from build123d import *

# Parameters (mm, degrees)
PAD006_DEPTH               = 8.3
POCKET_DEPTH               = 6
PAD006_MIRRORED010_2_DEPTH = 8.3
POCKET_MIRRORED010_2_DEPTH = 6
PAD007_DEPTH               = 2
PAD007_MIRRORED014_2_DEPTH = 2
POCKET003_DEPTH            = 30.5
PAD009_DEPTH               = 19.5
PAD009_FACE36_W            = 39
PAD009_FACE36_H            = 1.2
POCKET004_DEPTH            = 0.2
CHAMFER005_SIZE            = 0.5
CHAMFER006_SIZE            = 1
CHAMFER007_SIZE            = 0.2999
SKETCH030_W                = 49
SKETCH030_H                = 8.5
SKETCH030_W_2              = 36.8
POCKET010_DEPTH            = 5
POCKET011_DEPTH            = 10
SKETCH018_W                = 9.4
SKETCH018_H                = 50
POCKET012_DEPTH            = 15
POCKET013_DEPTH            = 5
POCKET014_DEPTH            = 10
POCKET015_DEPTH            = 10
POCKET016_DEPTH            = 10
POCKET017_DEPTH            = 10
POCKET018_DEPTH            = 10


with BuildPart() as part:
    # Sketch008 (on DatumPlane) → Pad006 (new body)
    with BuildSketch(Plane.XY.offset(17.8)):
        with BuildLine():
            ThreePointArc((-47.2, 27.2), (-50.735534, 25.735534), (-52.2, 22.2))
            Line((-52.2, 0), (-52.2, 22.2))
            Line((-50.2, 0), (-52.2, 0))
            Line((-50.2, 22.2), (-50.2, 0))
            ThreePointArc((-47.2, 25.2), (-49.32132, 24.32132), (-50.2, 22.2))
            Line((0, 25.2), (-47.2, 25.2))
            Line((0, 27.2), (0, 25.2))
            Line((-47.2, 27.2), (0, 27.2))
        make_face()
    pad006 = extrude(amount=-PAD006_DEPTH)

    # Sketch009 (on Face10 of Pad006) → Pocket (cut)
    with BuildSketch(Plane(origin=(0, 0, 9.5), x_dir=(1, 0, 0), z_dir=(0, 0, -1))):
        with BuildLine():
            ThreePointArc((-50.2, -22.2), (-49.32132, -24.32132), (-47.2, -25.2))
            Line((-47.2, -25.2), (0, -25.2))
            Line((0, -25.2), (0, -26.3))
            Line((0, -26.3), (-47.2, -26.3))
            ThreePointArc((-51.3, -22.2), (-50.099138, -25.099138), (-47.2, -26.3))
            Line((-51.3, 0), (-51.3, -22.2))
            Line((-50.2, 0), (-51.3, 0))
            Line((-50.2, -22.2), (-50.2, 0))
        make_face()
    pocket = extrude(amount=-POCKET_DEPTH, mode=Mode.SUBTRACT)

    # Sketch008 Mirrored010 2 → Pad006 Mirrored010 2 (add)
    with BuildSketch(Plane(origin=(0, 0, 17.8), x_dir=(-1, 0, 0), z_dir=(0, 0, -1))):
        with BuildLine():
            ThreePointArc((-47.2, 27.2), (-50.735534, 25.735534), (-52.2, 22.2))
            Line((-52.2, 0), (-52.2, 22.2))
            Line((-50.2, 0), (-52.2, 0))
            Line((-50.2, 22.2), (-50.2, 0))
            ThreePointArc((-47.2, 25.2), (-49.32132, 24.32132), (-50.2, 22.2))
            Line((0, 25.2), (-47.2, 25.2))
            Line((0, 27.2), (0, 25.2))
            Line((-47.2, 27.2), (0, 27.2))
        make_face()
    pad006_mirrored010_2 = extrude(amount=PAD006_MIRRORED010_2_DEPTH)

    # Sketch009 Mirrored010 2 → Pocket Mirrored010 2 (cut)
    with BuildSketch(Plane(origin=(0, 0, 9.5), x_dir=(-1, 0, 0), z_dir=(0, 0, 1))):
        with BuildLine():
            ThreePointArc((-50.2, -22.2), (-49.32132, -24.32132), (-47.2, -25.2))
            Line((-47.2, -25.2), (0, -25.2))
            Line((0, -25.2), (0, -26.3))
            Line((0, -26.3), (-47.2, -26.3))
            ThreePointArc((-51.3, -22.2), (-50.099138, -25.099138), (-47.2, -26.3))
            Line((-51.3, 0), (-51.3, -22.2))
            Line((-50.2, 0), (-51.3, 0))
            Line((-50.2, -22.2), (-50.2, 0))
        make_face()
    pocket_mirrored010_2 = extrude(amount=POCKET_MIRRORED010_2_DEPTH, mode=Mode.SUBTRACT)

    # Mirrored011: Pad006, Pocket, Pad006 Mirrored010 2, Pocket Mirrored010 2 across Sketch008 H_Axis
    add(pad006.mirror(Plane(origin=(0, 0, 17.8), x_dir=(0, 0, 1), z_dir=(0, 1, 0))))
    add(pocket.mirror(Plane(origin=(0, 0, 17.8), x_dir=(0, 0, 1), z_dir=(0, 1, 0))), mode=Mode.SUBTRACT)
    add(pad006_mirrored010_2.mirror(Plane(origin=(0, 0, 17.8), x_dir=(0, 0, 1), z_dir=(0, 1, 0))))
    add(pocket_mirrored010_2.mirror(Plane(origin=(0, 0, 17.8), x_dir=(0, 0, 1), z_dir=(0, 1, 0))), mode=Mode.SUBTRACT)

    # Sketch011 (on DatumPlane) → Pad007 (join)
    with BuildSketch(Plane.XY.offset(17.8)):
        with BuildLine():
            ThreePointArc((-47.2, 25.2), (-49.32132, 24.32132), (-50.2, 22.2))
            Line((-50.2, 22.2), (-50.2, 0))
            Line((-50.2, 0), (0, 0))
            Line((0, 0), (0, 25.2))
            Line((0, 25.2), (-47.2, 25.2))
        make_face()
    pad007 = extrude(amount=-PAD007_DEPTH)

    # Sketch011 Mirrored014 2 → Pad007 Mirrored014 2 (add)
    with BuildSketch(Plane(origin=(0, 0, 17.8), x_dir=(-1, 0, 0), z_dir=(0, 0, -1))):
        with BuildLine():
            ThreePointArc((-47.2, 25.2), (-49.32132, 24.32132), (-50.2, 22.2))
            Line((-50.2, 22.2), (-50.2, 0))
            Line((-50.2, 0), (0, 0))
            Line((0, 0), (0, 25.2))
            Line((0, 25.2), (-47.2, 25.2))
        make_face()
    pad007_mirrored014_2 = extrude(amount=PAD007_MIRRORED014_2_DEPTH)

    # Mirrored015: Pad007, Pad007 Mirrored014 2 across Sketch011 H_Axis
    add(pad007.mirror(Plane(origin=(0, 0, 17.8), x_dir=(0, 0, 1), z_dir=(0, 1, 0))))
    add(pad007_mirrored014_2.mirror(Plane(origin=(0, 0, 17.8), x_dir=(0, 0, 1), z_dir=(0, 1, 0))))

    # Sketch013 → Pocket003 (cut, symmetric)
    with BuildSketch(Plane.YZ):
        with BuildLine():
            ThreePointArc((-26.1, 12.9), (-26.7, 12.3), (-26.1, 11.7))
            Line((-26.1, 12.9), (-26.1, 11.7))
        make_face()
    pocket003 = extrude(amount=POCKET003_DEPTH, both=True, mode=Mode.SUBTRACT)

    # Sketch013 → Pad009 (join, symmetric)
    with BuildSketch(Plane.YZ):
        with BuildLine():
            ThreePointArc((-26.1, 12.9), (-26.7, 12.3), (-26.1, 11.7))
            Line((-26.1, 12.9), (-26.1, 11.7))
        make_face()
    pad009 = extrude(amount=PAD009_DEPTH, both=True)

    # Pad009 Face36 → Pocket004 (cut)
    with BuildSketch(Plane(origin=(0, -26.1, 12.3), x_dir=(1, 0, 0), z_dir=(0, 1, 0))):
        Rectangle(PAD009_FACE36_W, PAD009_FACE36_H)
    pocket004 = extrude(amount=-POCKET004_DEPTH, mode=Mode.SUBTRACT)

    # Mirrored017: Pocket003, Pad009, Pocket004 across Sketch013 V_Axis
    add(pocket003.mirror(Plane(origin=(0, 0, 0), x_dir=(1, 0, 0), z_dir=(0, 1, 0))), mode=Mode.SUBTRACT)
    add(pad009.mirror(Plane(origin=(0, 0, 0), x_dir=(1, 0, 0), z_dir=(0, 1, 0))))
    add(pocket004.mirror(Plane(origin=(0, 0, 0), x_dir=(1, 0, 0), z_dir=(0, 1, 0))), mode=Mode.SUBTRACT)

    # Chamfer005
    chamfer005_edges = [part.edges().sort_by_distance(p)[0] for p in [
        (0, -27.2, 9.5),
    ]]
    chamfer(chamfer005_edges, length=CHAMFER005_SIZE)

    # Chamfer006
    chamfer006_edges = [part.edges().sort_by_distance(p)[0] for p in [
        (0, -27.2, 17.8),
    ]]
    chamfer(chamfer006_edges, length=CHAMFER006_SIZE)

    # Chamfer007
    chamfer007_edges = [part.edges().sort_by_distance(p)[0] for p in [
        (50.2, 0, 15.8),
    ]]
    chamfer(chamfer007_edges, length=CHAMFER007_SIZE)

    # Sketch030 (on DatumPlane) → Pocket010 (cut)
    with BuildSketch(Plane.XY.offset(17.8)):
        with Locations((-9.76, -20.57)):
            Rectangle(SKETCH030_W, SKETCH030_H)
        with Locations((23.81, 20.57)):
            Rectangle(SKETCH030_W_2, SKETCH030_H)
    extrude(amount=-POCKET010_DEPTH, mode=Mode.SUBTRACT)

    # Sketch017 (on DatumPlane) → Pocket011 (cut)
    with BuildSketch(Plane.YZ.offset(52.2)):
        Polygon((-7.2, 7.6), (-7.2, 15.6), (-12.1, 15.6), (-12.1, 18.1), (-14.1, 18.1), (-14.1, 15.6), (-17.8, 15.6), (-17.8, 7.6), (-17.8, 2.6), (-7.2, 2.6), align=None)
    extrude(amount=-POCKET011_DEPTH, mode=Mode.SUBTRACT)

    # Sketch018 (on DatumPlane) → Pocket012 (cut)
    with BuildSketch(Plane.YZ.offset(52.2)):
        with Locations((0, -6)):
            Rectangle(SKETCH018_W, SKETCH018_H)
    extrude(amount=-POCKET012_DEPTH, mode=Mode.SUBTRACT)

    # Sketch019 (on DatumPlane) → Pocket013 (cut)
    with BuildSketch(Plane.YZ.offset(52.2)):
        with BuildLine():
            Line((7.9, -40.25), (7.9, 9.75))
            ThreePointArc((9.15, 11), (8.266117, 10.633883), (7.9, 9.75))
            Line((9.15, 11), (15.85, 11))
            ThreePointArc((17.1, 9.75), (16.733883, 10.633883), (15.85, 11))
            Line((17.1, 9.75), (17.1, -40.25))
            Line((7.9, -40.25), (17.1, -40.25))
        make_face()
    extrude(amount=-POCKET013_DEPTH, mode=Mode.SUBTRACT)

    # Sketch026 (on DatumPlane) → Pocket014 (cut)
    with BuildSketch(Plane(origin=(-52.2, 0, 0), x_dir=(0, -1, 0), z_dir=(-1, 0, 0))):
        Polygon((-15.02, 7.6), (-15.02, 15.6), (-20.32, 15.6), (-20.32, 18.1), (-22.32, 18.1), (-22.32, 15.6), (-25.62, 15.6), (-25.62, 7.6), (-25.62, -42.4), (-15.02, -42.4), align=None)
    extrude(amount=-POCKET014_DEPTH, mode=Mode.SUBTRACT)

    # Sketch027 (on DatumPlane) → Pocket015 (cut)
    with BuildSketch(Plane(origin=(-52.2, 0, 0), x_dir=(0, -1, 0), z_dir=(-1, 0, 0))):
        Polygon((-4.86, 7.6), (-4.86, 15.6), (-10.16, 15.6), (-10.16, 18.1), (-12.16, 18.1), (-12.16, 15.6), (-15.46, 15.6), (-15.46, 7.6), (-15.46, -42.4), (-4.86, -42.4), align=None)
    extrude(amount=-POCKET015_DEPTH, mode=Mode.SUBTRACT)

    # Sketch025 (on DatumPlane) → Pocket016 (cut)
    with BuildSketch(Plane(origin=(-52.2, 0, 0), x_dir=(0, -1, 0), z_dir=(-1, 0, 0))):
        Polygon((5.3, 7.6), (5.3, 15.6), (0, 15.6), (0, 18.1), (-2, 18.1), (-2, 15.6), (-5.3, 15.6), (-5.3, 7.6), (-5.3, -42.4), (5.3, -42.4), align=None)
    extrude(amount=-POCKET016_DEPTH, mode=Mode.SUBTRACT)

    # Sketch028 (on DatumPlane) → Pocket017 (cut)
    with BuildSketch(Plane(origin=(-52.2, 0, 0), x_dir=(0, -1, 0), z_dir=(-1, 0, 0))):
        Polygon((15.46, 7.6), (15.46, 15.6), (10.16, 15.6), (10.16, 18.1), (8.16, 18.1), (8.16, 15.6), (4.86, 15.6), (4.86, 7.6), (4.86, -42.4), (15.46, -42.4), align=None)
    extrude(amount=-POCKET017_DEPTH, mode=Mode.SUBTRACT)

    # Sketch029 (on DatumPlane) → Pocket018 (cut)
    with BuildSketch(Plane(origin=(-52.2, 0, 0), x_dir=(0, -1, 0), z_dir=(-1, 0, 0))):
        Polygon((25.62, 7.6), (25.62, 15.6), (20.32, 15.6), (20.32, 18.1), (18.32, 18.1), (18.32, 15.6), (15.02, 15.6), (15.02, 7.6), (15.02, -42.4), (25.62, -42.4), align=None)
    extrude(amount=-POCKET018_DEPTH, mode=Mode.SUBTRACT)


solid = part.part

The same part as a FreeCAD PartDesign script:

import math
import FreeCAD as App
import Part
import Sketcher
from FreeCAD import Vector


def edges_at(feature, points):
    """Names of the edges that pass closest to the given points."""
    edges = feature.Shape.Edges
    near = lambda p: min(range(len(edges)), key=lambda i: edges[i].distToShape(Part.Vertex(*p))[0])
    return sorted({f"Edge{near(p) + 1}" for p in points})

doc = App.newDocument("Part")
body = doc.addObject("PartDesign::Body", "Body")

# Sketch on XY plane
sketch1 = body.newObject("Sketcher::SketchObject", "Sketch")
sketch1.AttachmentSupport = (doc.getObject("XY_Plane"), [""])
sketch1.MapMode = "FlatFace"
sketch1.AttachmentOffset = App.Placement(Vector(0, 0, 17.8), App.Rotation())
sketch1.addGeometry(Part.ArcOfCircle(Part.Circle(Vector(-47.2, 22.2, 0), Vector(0, 0, 1), 5), math.radians(89.999996), math.radians(180.000004)), False)
sketch1.addGeometry(Part.LineSegment(Vector(-52.2, 22.2, 0), Vector(-52.2, 0, 0)), False)
sketch1.addGeometry(Part.LineSegment(Vector(-52.2, 0, 0), Vector(-50.2, 0, 0)), False)
sketch1.addGeometry(Part.LineSegment(Vector(-50.2, 0, 0), Vector(-50.2, 22.2, 0)), False)
sketch1.addGeometry(Part.ArcOfCircle(Part.Circle(Vector(-47.199999, 22.199999, 0), Vector(0, 0, 1), 3.000001), math.radians(90.000022), math.radians(179.999978)), False)
sketch1.addGeometry(Part.LineSegment(Vector(-47.2, 25.2, 0), Vector(0, 25.2, 0)), False)
sketch1.addGeometry(Part.LineSegment(Vector(0, 25.2, 0), Vector(0, 27.2, 0)), False)
sketch1.addGeometry(Part.LineSegment(Vector(0, 27.2, 0), Vector(-47.2, 27.2, 0)), False)
sketch1.addConstraint(Sketcher.Constraint("Tangent", 0, 2, 1, 1))
sketch1.addConstraint(Sketcher.Constraint("Coincident", 1, 2, 2, 1))
sketch1.addConstraint(Sketcher.Constraint("Coincident", 2, 2, 3, 1))
sketch1.addConstraint(Sketcher.Constraint("Tangent", 3, 2, 4, 2))
sketch1.addConstraint(Sketcher.Constraint("Tangent", 4, 1, 5, 1))
sketch1.addConstraint(Sketcher.Constraint("Coincident", 5, 2, 6, 1))
sketch1.addConstraint(Sketcher.Constraint("Coincident", 6, 2, 7, 1))
sketch1.addConstraint(Sketcher.Constraint("Tangent", 7, 2, 0, 1))
sketch1.addConstraint(Sketcher.Constraint("Vertical", 1))
sketch1.addConstraint(Sketcher.Constraint("Horizontal", 2))
sketch1.addConstraint(Sketcher.Constraint("Vertical", 3))
sketch1.addConstraint(Sketcher.Constraint("Horizontal", 5))
sketch1.addConstraint(Sketcher.Constraint("Vertical", 6))
sketch1.addConstraint(Sketcher.Constraint("Horizontal", 7))
sketch1.addConstraint(Sketcher.Constraint("Coincident", 4, 3, 0, 3))
sketch1.addConstraint(Sketcher.Constraint("PointOnObject", 1, 2, -1))
sketch1.addConstraint(Sketcher.Constraint("PointOnObject", 5, 2, -2))
sketch1.addConstraint(Sketcher.Constraint("Radius", 0, 5.0))
sketch1.addConstraint(Sketcher.Constraint("Radius", 4, 3.000001))
sketch1.addConstraint(Sketcher.Constraint("DistanceX", 5, 1, 5, 2, 47.2))
sketch1.addConstraint(Sketcher.Constraint("DistanceY", 1, 2, 1, 1, 22.2))
pad1 = body.newObject("PartDesign::Pad", "Pad")
pad1.Profile = sketch1
pad1.Length = 8.3
pad1.Reversed = True

# Sketch on XY plane
sketch2 = body.newObject("Sketcher::SketchObject", "Sketch001")
sketch2.AttachmentSupport = (doc.getObject("XY_Plane"), [""])
sketch2.MapMode = "FlatFace"
sketch2.AttachmentOffset = App.Placement(Vector(0, 0, 9.5), App.Rotation())
sketch2.addGeometry(Part.ArcOfCircle(Part.Circle(Vector(-47.199999, 22.199999, 0), Vector(0, 0, 1), 3.000001), math.radians(90.000022), math.radians(179.999978)), False)
sketch2.addGeometry(Part.LineSegment(Vector(-50.2, 22.2, 0), Vector(-50.2, 0, 0)), False)
sketch2.addGeometry(Part.LineSegment(Vector(-50.2, 0, 0), Vector(-51.3, 0, 0)), False)
sketch2.addGeometry(Part.LineSegment(Vector(-51.3, 0, 0), Vector(-51.3, 22.2, 0)), False)
sketch2.addGeometry(Part.ArcOfCircle(Part.Circle(Vector(-47.200001, 22.200001, 0), Vector(0, 0, 1), 4.099999), math.radians(89.999991), math.radians(180.000009)), False)
sketch2.addGeometry(Part.LineSegment(Vector(-47.2, 26.3, 0), Vector(0, 26.3, 0)), False)
sketch2.addGeometry(Part.LineSegment(Vector(0, 26.3, 0), Vector(0, 25.2, 0)), False)
sketch2.addGeometry(Part.LineSegment(Vector(0, 25.2, 0), Vector(-47.2, 25.2, 0)), False)
sketch2.addConstraint(Sketcher.Constraint("Tangent", 0, 2, 1, 1))
sketch2.addConstraint(Sketcher.Constraint("Coincident", 1, 2, 2, 1))
sketch2.addConstraint(Sketcher.Constraint("Coincident", 2, 2, 3, 1))
sketch2.addConstraint(Sketcher.Constraint("Tangent", 3, 2, 4, 2))
sketch2.addConstraint(Sketcher.Constraint("Tangent", 4, 1, 5, 1))
sketch2.addConstraint(Sketcher.Constraint("Coincident", 5, 2, 6, 1))
sketch2.addConstraint(Sketcher.Constraint("Coincident", 6, 2, 7, 1))
sketch2.addConstraint(Sketcher.Constraint("Tangent", 7, 2, 0, 1))
sketch2.addConstraint(Sketcher.Constraint("Vertical", 1))
sketch2.addConstraint(Sketcher.Constraint("Horizontal", 2))
sketch2.addConstraint(Sketcher.Constraint("Vertical", 3))
sketch2.addConstraint(Sketcher.Constraint("Horizontal", 5))
sketch2.addConstraint(Sketcher.Constraint("Vertical", 6))
sketch2.addConstraint(Sketcher.Constraint("Horizontal", 7))
sketch2.addConstraint(Sketcher.Constraint("Coincident", 4, 3, 0, 3))
sketch2.addConstraint(Sketcher.Constraint("PointOnObject", 1, 2, -1))
sketch2.addConstraint(Sketcher.Constraint("PointOnObject", 5, 2, -2))
sketch2.addConstraint(Sketcher.Constraint("Radius", 0, 3.000001))
sketch2.addConstraint(Sketcher.Constraint("Radius", 4, 4.099999))
sketch2.addConstraint(Sketcher.Constraint("DistanceX", 5, 1, 5, 2, 47.2))
sketch2.addConstraint(Sketcher.Constraint("DistanceY", 1, 2, 1, 1, 22.2))
pocket1 = body.newObject("PartDesign::Pocket", "Pocket")
pocket1.Profile = sketch2
pocket1.Length = 6
pocket1.Reversed = True

# Sketch on XY plane
sketch3 = body.newObject("Sketcher::SketchObject", "Sketch002")
sketch3.AttachmentSupport = (doc.getObject("XY_Plane"), [""])
sketch3.MapMode = "FlatFace"
sketch3.AttachmentOffset = App.Placement(Vector(0, 0, 17.8), App.Rotation())
sketch3.addGeometry(Part.ArcOfCircle(Part.Circle(Vector(47.2, 22.2, 0), Vector(0, 0, 1), 5), math.radians(-0.000004), math.radians(90.000004)), False)
sketch3.addGeometry(Part.LineSegment(Vector(52.2, 22.2, 0), Vector(52.2, 0, 0)), False)
sketch3.addGeometry(Part.LineSegment(Vector(52.2, 0, 0), Vector(50.2, 0, 0)), False)
sketch3.addGeometry(Part.LineSegment(Vector(50.2, 0, 0), Vector(50.2, 22.2, 0)), False)
sketch3.addGeometry(Part.ArcOfCircle(Part.Circle(Vector(47.199999, 22.199999, 0), Vector(0, 0, 1), 3.000001), math.radians(0.000022), math.radians(89.999978)), False)
sketch3.addGeometry(Part.LineSegment(Vector(47.2, 25.2, 0), Vector(0, 25.2, 0)), False)
sketch3.addGeometry(Part.LineSegment(Vector(0, 25.2, 0), Vector(0, 27.2, 0)), False)
sketch3.addGeometry(Part.LineSegment(Vector(0, 27.2, 0), Vector(47.2, 27.2, 0)), False)
sketch3.addConstraint(Sketcher.Constraint("Tangent", 0, 1, 1, 1))
sketch3.addConstraint(Sketcher.Constraint("Coincident", 1, 2, 2, 1))
sketch3.addConstraint(Sketcher.Constraint("Coincident", 2, 2, 3, 1))
sketch3.addConstraint(Sketcher.Constraint("Tangent", 3, 2, 4, 1))
sketch3.addConstraint(Sketcher.Constraint("Tangent", 4, 2, 5, 1))
sketch3.addConstraint(Sketcher.Constraint("Coincident", 5, 2, 6, 1))
sketch3.addConstraint(Sketcher.Constraint("Coincident", 6, 2, 7, 1))
sketch3.addConstraint(Sketcher.Constraint("Tangent", 7, 2, 0, 2))
sketch3.addConstraint(Sketcher.Constraint("Vertical", 1))
sketch3.addConstraint(Sketcher.Constraint("Horizontal", 2))
sketch3.addConstraint(Sketcher.Constraint("Vertical", 3))
sketch3.addConstraint(Sketcher.Constraint("Horizontal", 5))
sketch3.addConstraint(Sketcher.Constraint("Vertical", 6))
sketch3.addConstraint(Sketcher.Constraint("Horizontal", 7))
sketch3.addConstraint(Sketcher.Constraint("Coincident", 4, 3, 0, 3))
sketch3.addConstraint(Sketcher.Constraint("PointOnObject", 1, 2, -1))
sketch3.addConstraint(Sketcher.Constraint("PointOnObject", 5, 2, -2))
sketch3.addConstraint(Sketcher.Constraint("Radius", 0, 5.0))
sketch3.addConstraint(Sketcher.Constraint("Radius", 4, 3.000001))
sketch3.addConstraint(Sketcher.Constraint("DistanceX", 5, 2, 5, 1, 47.2))
sketch3.addConstraint(Sketcher.Constraint("DistanceY", 1, 2, 1, 1, 22.2))
pad2 = body.newObject("PartDesign::Pad", "Pad001")
pad2.Profile = sketch3
pad2.Length = 8.3
pad2.Reversed = True

# Sketch on XY plane
sketch4 = body.newObject("Sketcher::SketchObject", "Sketch003")
sketch4.AttachmentSupport = (doc.getObject("XY_Plane"), [""])
sketch4.MapMode = "FlatFace"
sketch4.AttachmentOffset = App.Placement(Vector(0, 0, 9.5), App.Rotation())
sketch4.addGeometry(Part.ArcOfCircle(Part.Circle(Vector(47.199999, 22.199999, 0), Vector(0, 0, 1), 3.000001), math.radians(0.000022), math.radians(89.999978)), False)
sketch4.addGeometry(Part.LineSegment(Vector(50.2, 22.2, 0), Vector(50.2, 0, 0)), False)
sketch4.addGeometry(Part.LineSegment(Vector(50.2, 0, 0), Vector(51.3, 0, 0)), False)
sketch4.addGeometry(Part.LineSegment(Vector(51.3, 0, 0), Vector(51.3, 22.2, 0)), False)
sketch4.addGeometry(Part.ArcOfCircle(Part.Circle(Vector(47.200001, 22.200001, 0), Vector(0, 0, 1), 4.099999), math.radians(-0.000009), math.radians(90.000009)), False)
sketch4.addGeometry(Part.LineSegment(Vector(47.2, 26.3, 0), Vector(0, 26.3, 0)), False)
sketch4.addGeometry(Part.LineSegment(Vector(0, 26.3, 0), Vector(0, 25.2, 0)), False)
sketch4.addGeometry(Part.LineSegment(Vector(0, 25.2, 0), Vector(47.2, 25.2, 0)), False)
sketch4.addConstraint(Sketcher.Constraint("Tangent", 0, 1, 1, 1))
sketch4.addConstraint(Sketcher.Constraint("Coincident", 1, 2, 2, 1))
sketch4.addConstraint(Sketcher.Constraint("Coincident", 2, 2, 3, 1))
sketch4.addConstraint(Sketcher.Constraint("Tangent", 3, 2, 4, 1))
sketch4.addConstraint(Sketcher.Constraint("Tangent", 4, 2, 5, 1))
sketch4.addConstraint(Sketcher.Constraint("Coincident", 5, 2, 6, 1))
sketch4.addConstraint(Sketcher.Constraint("Coincident", 6, 2, 7, 1))
sketch4.addConstraint(Sketcher.Constraint("Tangent", 7, 2, 0, 2))
sketch4.addConstraint(Sketcher.Constraint("Vertical", 1))
sketch4.addConstraint(Sketcher.Constraint("Horizontal", 2))
sketch4.addConstraint(Sketcher.Constraint("Vertical", 3))
sketch4.addConstraint(Sketcher.Constraint("Horizontal", 5))
sketch4.addConstraint(Sketcher.Constraint("Vertical", 6))
sketch4.addConstraint(Sketcher.Constraint("Horizontal", 7))
sketch4.addConstraint(Sketcher.Constraint("Coincident", 4, 3, 0, 3))
sketch4.addConstraint(Sketcher.Constraint("PointOnObject", 1, 2, -1))
sketch4.addConstraint(Sketcher.Constraint("PointOnObject", 5, 2, -2))
sketch4.addConstraint(Sketcher.Constraint("Radius", 0, 3.000001))
sketch4.addConstraint(Sketcher.Constraint("Radius", 4, 4.099999))
sketch4.addConstraint(Sketcher.Constraint("DistanceX", 5, 2, 5, 1, 47.2))
sketch4.addConstraint(Sketcher.Constraint("DistanceY", 1, 2, 1, 1, 22.2))
pocket2 = body.newObject("PartDesign::Pocket", "Pocket001")
pocket2.Profile = sketch4
pocket2.Length = 6
pocket2.Reversed = True
doc.recompute()

mirrored = body.newObject("PartDesign::Mirrored", "Mirrored")
mirrored.Originals = [pad1, pocket1, pad2, pocket2]
mirrored.MirrorPlane = (doc.getObject("XZ_Plane"), [""])
body.Tip = mirrored

# Sketch on XY plane
sketch5 = body.newObject("Sketcher::SketchObject", "Sketch004")
sketch5.AttachmentSupport = (doc.getObject("XY_Plane"), [""])
sketch5.MapMode = "FlatFace"
sketch5.AttachmentOffset = App.Placement(Vector(0, 0, 17.8), App.Rotation())
sketch5.addGeometry(Part.ArcOfCircle(Part.Circle(Vector(-47.199999, 22.199999, 0), Vector(0, 0, 1), 3.000001), math.radians(90.000022), math.radians(179.999978)), False)
sketch5.addGeometry(Part.LineSegment(Vector(-50.2, 22.2, 0), Vector(-50.2, 0, 0)), False)
sketch5.addGeometry(Part.LineSegment(Vector(-50.2, 0, 0), Vector(0, 0, 0)), False)
sketch5.addGeometry(Part.LineSegment(Vector(0, 0, 0), Vector(0, 25.2, 0)), False)
sketch5.addGeometry(Part.LineSegment(Vector(0, 25.2, 0), Vector(-47.2, 25.2, 0)), False)
sketch5.addConstraint(Sketcher.Constraint("Tangent", 0, 2, 1, 1))
sketch5.addConstraint(Sketcher.Constraint("Coincident", 1, 2, 2, 1))
sketch5.addConstraint(Sketcher.Constraint("Coincident", 2, 2, 3, 1))
sketch5.addConstraint(Sketcher.Constraint("Coincident", 3, 2, 4, 1))
sketch5.addConstraint(Sketcher.Constraint("Tangent", 4, 2, 0, 1))
sketch5.addConstraint(Sketcher.Constraint("Vertical", 1))
sketch5.addConstraint(Sketcher.Constraint("Horizontal", 2))
sketch5.addConstraint(Sketcher.Constraint("Vertical", 3))
sketch5.addConstraint(Sketcher.Constraint("Horizontal", 4))
sketch5.addConstraint(Sketcher.Constraint("Coincident", 2, 2, -1, 1))
sketch5.addConstraint(Sketcher.Constraint("Radius", 0, 3.000001))
sketch5.addConstraint(Sketcher.Constraint("DistanceX", 2, 1, 2, 2, 50.2))
sketch5.addConstraint(Sketcher.Constraint("DistanceY", 1, 2, 1, 1, 22.2))
pad3 = body.newObject("PartDesign::Pad", "Pad002")
pad3.Profile = sketch5
pad3.Length = 2
pad3.Reversed = True

# Sketch on XY plane
sketch6 = body.newObject("Sketcher::SketchObject", "Sketch005")
sketch6.AttachmentSupport = (doc.getObject("XY_Plane"), [""])
sketch6.MapMode = "FlatFace"
sketch6.AttachmentOffset = App.Placement(Vector(0, 0, 17.8), App.Rotation())
sketch6.addGeometry(Part.ArcOfCircle(Part.Circle(Vector(47.199999, 22.199999, 0), Vector(0, 0, 1), 3.000001), math.radians(0.000022), math.radians(89.999978)), False)
sketch6.addGeometry(Part.LineSegment(Vector(50.2, 22.2, 0), Vector(50.2, 0, 0)), False)
sketch6.addGeometry(Part.LineSegment(Vector(50.2, 0, 0), Vector(0, 0, 0)), False)
sketch6.addGeometry(Part.LineSegment(Vector(0, 0, 0), Vector(0, 25.2, 0)), False)
sketch6.addGeometry(Part.LineSegment(Vector(0, 25.2, 0), Vector(47.2, 25.2, 0)), False)
sketch6.addConstraint(Sketcher.Constraint("Tangent", 0, 1, 1, 1))
sketch6.addConstraint(Sketcher.Constraint("Coincident", 1, 2, 2, 1))
sketch6.addConstraint(Sketcher.Constraint("Coincident", 2, 2, 3, 1))
sketch6.addConstraint(Sketcher.Constraint("Coincident", 3, 2, 4, 1))
sketch6.addConstraint(Sketcher.Constraint("Tangent", 4, 2, 0, 2))
sketch6.addConstraint(Sketcher.Constraint("Vertical", 1))
sketch6.addConstraint(Sketcher.Constraint("Horizontal", 2))
sketch6.addConstraint(Sketcher.Constraint("Vertical", 3))
sketch6.addConstraint(Sketcher.Constraint("Horizontal", 4))
sketch6.addConstraint(Sketcher.Constraint("Coincident", 2, 2, -1, 1))
sketch6.addConstraint(Sketcher.Constraint("Radius", 0, 3.000001))
sketch6.addConstraint(Sketcher.Constraint("DistanceX", 2, 2, 2, 1, 50.2))
sketch6.addConstraint(Sketcher.Constraint("DistanceY", 1, 2, 1, 1, 22.2))
pad4 = body.newObject("PartDesign::Pad", "Pad003")
pad4.Profile = sketch6
pad4.Length = 2
pad4.Reversed = True
doc.recompute()

mirrored2 = body.newObject("PartDesign::Mirrored", "Mirrored001")
mirrored2.Originals = [pad3, pad4]
mirrored2.MirrorPlane = (doc.getObject("XZ_Plane"), [""])
body.Tip = mirrored2

# Sketch on YZ plane
sketch7 = body.newObject("Sketcher::SketchObject", "Sketch006")
sketch7.AttachmentSupport = (doc.getObject("YZ_Plane"), [""])
sketch7.MapMode = "FlatFace"
sketch7.addGeometry(Part.ArcOfCircle(Part.Circle(Vector(-26.1, 12.3, 0), Vector(0, 0, 1), 0.6), math.radians(90), math.radians(270)), False)
sketch7.addGeometry(Part.LineSegment(Vector(-26.1, 11.7, 0), Vector(-26.1, 12.9, 0)), False)
sketch7.addConstraint(Sketcher.Constraint("Coincident", 0, 1, 1, 2))
sketch7.addConstraint(Sketcher.Constraint("Coincident", 1, 1, 0, 2))
sketch7.addConstraint(Sketcher.Constraint("Vertical", 1))
sketch7.addConstraint(Sketcher.Constraint("Radius", 0, 0.6))
sketch7.addConstraint(Sketcher.Constraint("DistanceX", 0, 3, -1, 1, 26.1))
sketch7.addConstraint(Sketcher.Constraint("DistanceY", -1, 1, 0, 3, 12.3))
sketch7.addConstraint(Sketcher.Constraint("DistanceX", 0, 1, -1, 1, 26.1))
pocket3 = body.newObject("PartDesign::Pocket", "Pocket002")
pocket3.Profile = sketch7
pocket3.Length = 61
pocket3.Midplane = True

# Sketch on YZ plane
sketch8 = body.newObject("Sketcher::SketchObject", "Sketch007")
sketch8.AttachmentSupport = (doc.getObject("YZ_Plane"), [""])
sketch8.MapMode = "FlatFace"
sketch8.addGeometry(Part.ArcOfCircle(Part.Circle(Vector(-26.1, 12.3, 0), Vector(0, 0, 1), 0.6), math.radians(90), math.radians(270)), False)
sketch8.addGeometry(Part.LineSegment(Vector(-26.1, 11.7, 0), Vector(-26.1, 12.9, 0)), False)
sketch8.addConstraint(Sketcher.Constraint("Coincident", 0, 1, 1, 2))
sketch8.addConstraint(Sketcher.Constraint("Coincident", 1, 1, 0, 2))
sketch8.addConstraint(Sketcher.Constraint("Vertical", 1))
sketch8.addConstraint(Sketcher.Constraint("Radius", 0, 0.6))
sketch8.addConstraint(Sketcher.Constraint("DistanceX", 0, 3, -1, 1, 26.1))
sketch8.addConstraint(Sketcher.Constraint("DistanceY", -1, 1, 0, 3, 12.3))
sketch8.addConstraint(Sketcher.Constraint("DistanceX", 0, 1, -1, 1, 26.1))
pad5 = body.newObject("PartDesign::Pad", "Pad004")
pad5.Profile = sketch8
pad5.Length = 39
pad5.Midplane = True

# Sketch on XZ plane
sketch9 = body.newObject("Sketcher::SketchObject", "Sketch008")
sketch9.AttachmentSupport = (doc.getObject("XZ_Plane"), [""])
sketch9.MapMode = "FlatFace"
sketch9.AttachmentOffset = App.Placement(Vector(0, 0, 26.1), App.Rotation())
sketch9.addGeometry(Part.LineSegment(Vector(-19.5, 11.7, 0), Vector(-19.5, 12.9, 0)), False)
sketch9.addGeometry(Part.LineSegment(Vector(-19.5, 12.9, 0), Vector(19.5, 12.9, 0)), False)
sketch9.addGeometry(Part.LineSegment(Vector(19.5, 12.9, 0), Vector(19.5, 11.7, 0)), False)
sketch9.addGeometry(Part.LineSegment(Vector(19.5, 11.7, 0), Vector(-19.5, 11.7, 0)), False)
sketch9.addConstraint(Sketcher.Constraint("Coincident", 0, 2, 1, 1))
sketch9.addConstraint(Sketcher.Constraint("Coincident", 1, 2, 2, 1))
sketch9.addConstraint(Sketcher.Constraint("Coincident", 2, 2, 3, 1))
sketch9.addConstraint(Sketcher.Constraint("Coincident", 3, 2, 0, 1))
sketch9.addConstraint(Sketcher.Constraint("Vertical", 0))
sketch9.addConstraint(Sketcher.Constraint("Horizontal", 1))
sketch9.addConstraint(Sketcher.Constraint("Vertical", 2))
sketch9.addConstraint(Sketcher.Constraint("Horizontal", 3))
sketch9.addConstraint(Sketcher.Constraint("DistanceX", 1, 1, 1, 2, 39.0))
sketch9.addConstraint(Sketcher.Constraint("DistanceY", 0, 1, 0, 2, 1.2))
sketch9.addConstraint(Sketcher.Constraint("DistanceX", 0, 2, -1, 1, 19.5))
sketch9.addConstraint(Sketcher.Constraint("DistanceY", -1, 1, 0, 2, 12.9))
pocket4 = body.newObject("PartDesign::Pocket", "Pocket003")
pocket4.Profile = sketch9
pocket4.Length = 0.2
pocket4.Reversed = True
doc.recompute()

mirrored3 = body.newObject("PartDesign::Mirrored", "Mirrored002")
mirrored3.Originals = [pocket3, pad5, pocket4]
mirrored3.MirrorPlane = (doc.getObject("XZ_Plane"), [""])
body.Tip = mirrored3
doc.recompute()

chamfer = body.newObject("PartDesign::Chamfer", "Chamfer")
chamfer.Base = (mirrored3, edges_at(mirrored3, [(0, -27.2, 9.5)]))
chamfer.Size = 0.5
doc.recompute()

chamfer2 = body.newObject("PartDesign::Chamfer", "Chamfer001")
chamfer2.Base = (chamfer, edges_at(chamfer, [(0, -27.2, 17.8)]))
chamfer2.Size = 1
doc.recompute()

chamfer3 = body.newObject("PartDesign::Chamfer", "Chamfer002")
chamfer3.Base = (chamfer2, edges_at(chamfer2, [(50.2, 0, 15.8)]))
chamfer3.Size = 0.2999

# Sketch on XY plane
sketch10 = body.newObject("Sketcher::SketchObject", "Sketch009")
sketch10.AttachmentSupport = (doc.getObject("XY_Plane"), [""])
sketch10.MapMode = "FlatFace"
sketch10.AttachmentOffset = App.Placement(Vector(0, 0, 17.8), App.Rotation())
sketch10.addGeometry(Part.LineSegment(Vector(-34.26, -16.32, 0), Vector(-34.26, -24.82, 0)), False)
sketch10.addGeometry(Part.LineSegment(Vector(-34.26, -24.82, 0), Vector(14.74, -24.82, 0)), False)
sketch10.addGeometry(Part.LineSegment(Vector(14.74, -24.82, 0), Vector(14.74, -16.32, 0)), False)
sketch10.addGeometry(Part.LineSegment(Vector(14.74, -16.32, 0), Vector(-34.26, -16.32, 0)), False)
sketch10.addGeometry(Part.LineSegment(Vector(5.41, 24.82, 0), Vector(5.41, 16.32, 0)), False)
sketch10.addGeometry(Part.LineSegment(Vector(5.41, 16.32, 0), Vector(42.21, 16.32, 0)), False)
sketch10.addGeometry(Part.LineSegment(Vector(42.21, 16.32, 0), Vector(42.21, 24.82, 0)), False)
sketch10.addGeometry(Part.LineSegment(Vector(42.21, 24.82, 0), Vector(5.41, 24.82, 0)), False)
sketch10.addConstraint(Sketcher.Constraint("Coincident", 0, 2, 1, 1))
sketch10.addConstraint(Sketcher.Constraint("Coincident", 1, 2, 2, 1))
sketch10.addConstraint(Sketcher.Constraint("Coincident", 2, 2, 3, 1))
sketch10.addConstraint(Sketcher.Constraint("Coincident", 3, 2, 0, 1))
sketch10.addConstraint(Sketcher.Constraint("Coincident", 4, 2, 5, 1))
sketch10.addConstraint(Sketcher.Constraint("Coincident", 5, 2, 6, 1))
sketch10.addConstraint(Sketcher.Constraint("Coincident", 6, 2, 7, 1))
sketch10.addConstraint(Sketcher.Constraint("Coincident", 7, 2, 4, 1))
sketch10.addConstraint(Sketcher.Constraint("Vertical", 0))
sketch10.addConstraint(Sketcher.Constraint("Horizontal", 1))
sketch10.addConstraint(Sketcher.Constraint("Vertical", 2))
sketch10.addConstraint(Sketcher.Constraint("Horizontal", 3))
sketch10.addConstraint(Sketcher.Constraint("Vertical", 4))
sketch10.addConstraint(Sketcher.Constraint("Horizontal", 5))
sketch10.addConstraint(Sketcher.Constraint("Vertical", 6))
sketch10.addConstraint(Sketcher.Constraint("Horizontal", 7))
sketch10.addConstraint(Sketcher.Constraint("Equal", 2, 4))
sketch10.addConstraint(Sketcher.Constraint("DistanceX", 1, 1, 1, 2, 49.0))
sketch10.addConstraint(Sketcher.Constraint("DistanceX", 5, 1, 5, 2, 36.8))
sketch10.addConstraint(Sketcher.Constraint("DistanceY", 0, 2, 0, 1, 8.5))
sketch10.addConstraint(Sketcher.Constraint("DistanceX", 0, 2, -1, 1, 34.26))
sketch10.addConstraint(Sketcher.Constraint("DistanceY", 0, 2, -1, 1, 24.82))
sketch10.addConstraint(Sketcher.Constraint("DistanceX", -1, 1, 4, 2, 5.41))
sketch10.addConstraint(Sketcher.Constraint("DistanceY", -1, 1, 4, 2, 16.32))
pocket5 = body.newObject("PartDesign::Pocket", "Pocket004")
pocket5.Profile = sketch10
pocket5.Length = 5

# Sketch on YZ plane
sketch11 = body.newObject("Sketcher::SketchObject", "Sketch010")
sketch11.AttachmentSupport = (doc.getObject("YZ_Plane"), [""])
sketch11.MapMode = "FlatFace"
sketch11.AttachmentOffset = App.Placement(Vector(0, 0, 52.2), App.Rotation())
sketch11.addGeometry(Part.LineSegment(Vector(-7.2, 15.6, 0), Vector(-12.1, 15.6, 0)), False)
sketch11.addGeometry(Part.LineSegment(Vector(-12.1, 15.6, 0), Vector(-12.1, 18.1, 0)), False)
sketch11.addGeometry(Part.LineSegment(Vector(-12.1, 18.1, 0), Vector(-14.1, 18.1, 0)), False)
sketch11.addGeometry(Part.LineSegment(Vector(-14.1, 18.1, 0), Vector(-14.1, 15.6, 0)), False)
sketch11.addGeometry(Part.LineSegment(Vector(-14.1, 15.6, 0), Vector(-17.8, 15.6, 0)), False)
sketch11.addGeometry(Part.LineSegment(Vector(-17.8, 15.6, 0), Vector(-17.8, 2.6, 0)), False)
sketch11.addGeometry(Part.LineSegment(Vector(-17.8, 2.6, 0), Vector(-7.2, 2.6, 0)), False)
sketch11.addGeometry(Part.LineSegment(Vector(-7.2, 2.6, 0), Vector(-7.2, 15.6, 0)), False)
sketch11.addConstraint(Sketcher.Constraint("Coincident", 0, 2, 1, 1))
sketch11.addConstraint(Sketcher.Constraint("Coincident", 1, 2, 2, 1))
sketch11.addConstraint(Sketcher.Constraint("Coincident", 2, 2, 3, 1))
sketch11.addConstraint(Sketcher.Constraint("Coincident", 3, 2, 4, 1))
sketch11.addConstraint(Sketcher.Constraint("Coincident", 4, 2, 5, 1))
sketch11.addConstraint(Sketcher.Constraint("Coincident", 5, 2, 6, 1))
sketch11.addConstraint(Sketcher.Constraint("Coincident", 6, 2, 7, 1))
sketch11.addConstraint(Sketcher.Constraint("Coincident", 7, 2, 0, 1))
sketch11.addConstraint(Sketcher.Constraint("Horizontal", 0))
sketch11.addConstraint(Sketcher.Constraint("Vertical", 1))
sketch11.addConstraint(Sketcher.Constraint("Horizontal", 2))
sketch11.addConstraint(Sketcher.Constraint("Vertical", 3))
sketch11.addConstraint(Sketcher.Constraint("Horizontal", 4))
sketch11.addConstraint(Sketcher.Constraint("Vertical", 5))
sketch11.addConstraint(Sketcher.Constraint("Horizontal", 6))
sketch11.addConstraint(Sketcher.Constraint("Vertical", 7))
sketch11.addConstraint(Sketcher.Constraint("Horizontal", 0, 2, 3, 2))
sketch11.addConstraint(Sketcher.Constraint("DistanceX", 2, 2, 2, 1, 2.0))
sketch11.addConstraint(Sketcher.Constraint("DistanceY", 5, 2, 5, 1, 13.0))
sketch11.addConstraint(Sketcher.Constraint("DistanceX", 0, 2, 0, 1, 4.9))
sketch11.addConstraint(Sketcher.Constraint("DistanceX", 4, 2, 4, 1, 3.7))
sketch11.addConstraint(Sketcher.Constraint("DistanceY", 1, 1, 1, 2, 2.5))
sketch11.addConstraint(Sketcher.Constraint("DistanceX", 0, 2, -1, 1, 12.1))
sketch11.addConstraint(Sketcher.Constraint("DistanceY", -1, 1, 0, 2, 15.6))
pocket6 = body.newObject("PartDesign::Pocket", "Pocket005")
pocket6.Profile = sketch11
pocket6.Length = 10

# Sketch on YZ plane
sketch12 = body.newObject("Sketcher::SketchObject", "Sketch011")
sketch12.AttachmentSupport = (doc.getObject("YZ_Plane"), [""])
sketch12.MapMode = "FlatFace"
sketch12.AttachmentOffset = App.Placement(Vector(0, 0, 52.2), App.Rotation())
sketch12.addGeometry(Part.LineSegment(Vector(-4.7, 19, 0), Vector(-4.7, -31, 0)), False)
sketch12.addGeometry(Part.LineSegment(Vector(-4.7, -31, 0), Vector(4.7, -31, 0)), False)
sketch12.addGeometry(Part.LineSegment(Vector(4.7, -31, 0), Vector(4.7, 19, 0)), False)
sketch12.addGeometry(Part.LineSegment(Vector(4.7, 19, 0), Vector(-4.7, 19, 0)), False)
sketch12.addConstraint(Sketcher.Constraint("Coincident", 0, 2, 1, 1))
sketch12.addConstraint(Sketcher.Constraint("Coincident", 1, 2, 2, 1))
sketch12.addConstraint(Sketcher.Constraint("Coincident", 2, 2, 3, 1))
sketch12.addConstraint(Sketcher.Constraint("Coincident", 3, 2, 0, 1))
sketch12.addConstraint(Sketcher.Constraint("Vertical", 0))
sketch12.addConstraint(Sketcher.Constraint("Horizontal", 1))
sketch12.addConstraint(Sketcher.Constraint("Vertical", 2))
sketch12.addConstraint(Sketcher.Constraint("Horizontal", 3))
sketch12.addConstraint(Sketcher.Constraint("DistanceY", 0, 2, 0, 1, 50.0))
sketch12.addConstraint(Sketcher.Constraint("DistanceX", 1, 1, 1, 2, 9.4))
sketch12.addConstraint(Sketcher.Constraint("DistanceY", 0, 2, -1, 1, 31.0))
sketch12.addConstraint(Sketcher.Constraint("DistanceX", 0, 2, -1, 1, 4.7))
pocket7 = body.newObject("PartDesign::Pocket", "Pocket006")
pocket7.Profile = sketch12
pocket7.Length = 15

# Sketch on YZ plane
sketch13 = body.newObject("Sketcher::SketchObject", "Sketch012")
sketch13.AttachmentSupport = (doc.getObject("YZ_Plane"), [""])
sketch13.MapMode = "FlatFace"
sketch13.AttachmentOffset = App.Placement(Vector(0, 0, 52.2), App.Rotation())
sketch13.addGeometry(Part.LineSegment(Vector(7.9, 9.75, 0), Vector(7.9, -40.25, 0)), False)
sketch13.addGeometry(Part.LineSegment(Vector(7.9, -40.25, 0), Vector(17.1, -40.25, 0)), False)
sketch13.addGeometry(Part.LineSegment(Vector(17.1, -40.25, 0), Vector(17.1, 9.75, 0)), False)
sketch13.addGeometry(Part.ArcOfCircle(Part.Circle(Vector(15.849998, 9.749998, 0), Vector(0, 0, 1), 1.250002), math.radians(0.000075), math.radians(89.999925)), False)
sketch13.addGeometry(Part.LineSegment(Vector(15.85, 11, 0), Vector(9.15, 11, 0)), False)
sketch13.addGeometry(Part.ArcOfCircle(Part.Circle(Vector(9.150002, 9.749998, 0), Vector(0, 0, 1), 1.250002), math.radians(90.000075), math.radians(179.999925)), False)
sketch13.addConstraint(Sketcher.Constraint("Coincident", 0, 2, 1, 1))
sketch13.addConstraint(Sketcher.Constraint("Coincident", 1, 2, 2, 1))
sketch13.addConstraint(Sketcher.Constraint("Tangent", 2, 2, 3, 1))
sketch13.addConstraint(Sketcher.Constraint("Tangent", 3, 2, 4, 1))
sketch13.addConstraint(Sketcher.Constraint("Tangent", 4, 2, 5, 1))
sketch13.addConstraint(Sketcher.Constraint("Tangent", 5, 2, 0, 1))
sketch13.addConstraint(Sketcher.Constraint("Vertical", 0))
sketch13.addConstraint(Sketcher.Constraint("Horizontal", 1))
sketch13.addConstraint(Sketcher.Constraint("Vertical", 2))
sketch13.addConstraint(Sketcher.Constraint("Horizontal", 4))
sketch13.addConstraint(Sketcher.Constraint("Equal", 3, 5))
sketch13.addConstraint(Sketcher.Constraint("DistanceY", 0, 2, 0, 1, 50.0))
sketch13.addConstraint(Sketcher.Constraint("Radius", 3, 1.250002))
sketch13.addConstraint(Sketcher.Constraint("DistanceX", 1, 1, 1, 2, 9.2))
sketch13.addConstraint(Sketcher.Constraint("DistanceY", -1, 1, 3, 2, 11.0))
sketch13.addConstraint(Sketcher.Constraint("DistanceX", -1, 1, 0, 2, 7.9))
pocket8 = body.newObject("PartDesign::Pocket", "Pocket007")
pocket8.Profile = sketch13
pocket8.Length = 5

# Sketch on YZ plane
sketch14 = body.newObject("Sketcher::SketchObject", "Sketch013")
sketch14.AttachmentSupport = (doc.getObject("YZ_Plane"), [""])
sketch14.MapMode = "FlatFace"
sketch14.AttachmentOffset = App.Placement(Vector(0, 0, -52.2), App.Rotation())
sketch14.addGeometry(Part.LineSegment(Vector(15.02, 15.6, 0), Vector(20.32, 15.6, 0)), False)
sketch14.addGeometry(Part.LineSegment(Vector(20.32, 15.6, 0), Vector(20.32, 18.1, 0)), False)
sketch14.addGeometry(Part.LineSegment(Vector(20.32, 18.1, 0), Vector(22.32, 18.1, 0)), False)
sketch14.addGeometry(Part.LineSegment(Vector(22.32, 18.1, 0), Vector(22.32, 15.6, 0)), False)
sketch14.addGeometry(Part.LineSegment(Vector(22.32, 15.6, 0), Vector(25.62, 15.6, 0)), False)
sketch14.addGeometry(Part.LineSegment(Vector(25.62, 15.6, 0), Vector(25.62, -42.4, 0)), False)
sketch14.addGeometry(Part.LineSegment(Vector(25.62, -42.4, 0), Vector(15.02, -42.4, 0)), False)
sketch14.addGeometry(Part.LineSegment(Vector(15.02, -42.4, 0), Vector(15.02, 15.6, 0)), False)
sketch14.addConstraint(Sketcher.Constraint("Coincident", 0, 2, 1, 1))
sketch14.addConstraint(Sketcher.Constraint("Coincident", 1, 2, 2, 1))
sketch14.addConstraint(Sketcher.Constraint("Coincident", 2, 2, 3, 1))
sketch14.addConstraint(Sketcher.Constraint("Coincident", 3, 2, 4, 1))
sketch14.addConstraint(Sketcher.Constraint("Coincident", 4, 2, 5, 1))
sketch14.addConstraint(Sketcher.Constraint("Coincident", 5, 2, 6, 1))
sketch14.addConstraint(Sketcher.Constraint("Coincident", 6, 2, 7, 1))
sketch14.addConstraint(Sketcher.Constraint("Coincident", 7, 2, 0, 1))
sketch14.addConstraint(Sketcher.Constraint("Horizontal", 0))
sketch14.addConstraint(Sketcher.Constraint("Vertical", 1))
sketch14.addConstraint(Sketcher.Constraint("Horizontal", 2))
sketch14.addConstraint(Sketcher.Constraint("Vertical", 3))
sketch14.addConstraint(Sketcher.Constraint("Horizontal", 4))
sketch14.addConstraint(Sketcher.Constraint("Vertical", 5))
sketch14.addConstraint(Sketcher.Constraint("Horizontal", 6))
sketch14.addConstraint(Sketcher.Constraint("Vertical", 7))
sketch14.addConstraint(Sketcher.Constraint("Horizontal", 0, 2, 3, 2))
sketch14.addConstraint(Sketcher.Constraint("DistanceX", 2, 1, 2, 2, 2.0))
sketch14.addConstraint(Sketcher.Constraint("DistanceY", 5, 2, 5, 1, 58.0))
sketch14.addConstraint(Sketcher.Constraint("DistanceX", 0, 1, 0, 2, 5.3))
sketch14.addConstraint(Sketcher.Constraint("DistanceX", 4, 1, 4, 2, 3.3))
sketch14.addConstraint(Sketcher.Constraint("DistanceY", 1, 1, 1, 2, 2.5))
sketch14.addConstraint(Sketcher.Constraint("DistanceY", -1, 1, 0, 2, 15.6))
sketch14.addConstraint(Sketcher.Constraint("DistanceX", -1, 1, 0, 2, 20.32))
pocket9 = body.newObject("PartDesign::Pocket", "Pocket008")
pocket9.Profile = sketch14
pocket9.Length = 10
pocket9.Reversed = True

# Sketch on YZ plane
sketch15 = body.newObject("Sketcher::SketchObject", "Sketch014")
sketch15.AttachmentSupport = (doc.getObject("YZ_Plane"), [""])
sketch15.MapMode = "FlatFace"
sketch15.AttachmentOffset = App.Placement(Vector(0, 0, -52.2), App.Rotation())
sketch15.addGeometry(Part.LineSegment(Vector(4.86, 15.6, 0), Vector(10.16, 15.6, 0)), False)
sketch15.addGeometry(Part.LineSegment(Vector(10.16, 15.6, 0), Vector(10.16, 18.1, 0)), False)
sketch15.addGeometry(Part.LineSegment(Vector(10.16, 18.1, 0), Vector(12.16, 18.1, 0)), False)
sketch15.addGeometry(Part.LineSegment(Vector(12.16, 18.1, 0), Vector(12.16, 15.6, 0)), False)
sketch15.addGeometry(Part.LineSegment(Vector(12.16, 15.6, 0), Vector(15.46, 15.6, 0)), False)
sketch15.addGeometry(Part.LineSegment(Vector(15.46, 15.6, 0), Vector(15.46, -42.4, 0)), False)
sketch15.addGeometry(Part.LineSegment(Vector(15.46, -42.4, 0), Vector(4.86, -42.4, 0)), False)
sketch15.addGeometry(Part.LineSegment(Vector(4.86, -42.4, 0), Vector(4.86, 15.6, 0)), False)
sketch15.addConstraint(Sketcher.Constraint("Coincident", 0, 2, 1, 1))
sketch15.addConstraint(Sketcher.Constraint("Coincident", 1, 2, 2, 1))
sketch15.addConstraint(Sketcher.Constraint("Coincident", 2, 2, 3, 1))
sketch15.addConstraint(Sketcher.Constraint("Coincident", 3, 2, 4, 1))
sketch15.addConstraint(Sketcher.Constraint("Coincident", 4, 2, 5, 1))
sketch15.addConstraint(Sketcher.Constraint("Coincident", 5, 2, 6, 1))
sketch15.addConstraint(Sketcher.Constraint("Coincident", 6, 2, 7, 1))
sketch15.addConstraint(Sketcher.Constraint("Coincident", 7, 2, 0, 1))
sketch15.addConstraint(Sketcher.Constraint("Horizontal", 0))
sketch15.addConstraint(Sketcher.Constraint("Vertical", 1))
sketch15.addConstraint(Sketcher.Constraint("Horizontal", 2))
sketch15.addConstraint(Sketcher.Constraint("Vertical", 3))
sketch15.addConstraint(Sketcher.Constraint("Horizontal", 4))
sketch15.addConstraint(Sketcher.Constraint("Vertical", 5))
sketch15.addConstraint(Sketcher.Constraint("Horizontal", 6))
sketch15.addConstraint(Sketcher.Constraint("Vertical", 7))
sketch15.addConstraint(Sketcher.Constraint("Horizontal", 0, 2, 3, 2))
sketch15.addConstraint(Sketcher.Constraint("DistanceX", 2, 1, 2, 2, 2.0))
sketch15.addConstraint(Sketcher.Constraint("DistanceY", 5, 2, 5, 1, 58.0))
sketch15.addConstraint(Sketcher.Constraint("DistanceX", 0, 1, 0, 2, 5.3))
sketch15.addConstraint(Sketcher.Constraint("DistanceX", 4, 1, 4, 2, 3.3))
sketch15.addConstraint(Sketcher.Constraint("DistanceY", 1, 1, 1, 2, 2.5))
sketch15.addConstraint(Sketcher.Constraint("DistanceY", -1, 1, 0, 2, 15.6))
sketch15.addConstraint(Sketcher.Constraint("DistanceX", -1, 1, 0, 2, 10.16))
pocket10 = body.newObject("PartDesign::Pocket", "Pocket009")
pocket10.Profile = sketch15
pocket10.Length = 10
pocket10.Reversed = True

# Sketch on YZ plane
sketch16 = body.newObject("Sketcher::SketchObject", "Sketch015")
sketch16.AttachmentSupport = (doc.getObject("YZ_Plane"), [""])
sketch16.MapMode = "FlatFace"
sketch16.AttachmentOffset = App.Placement(Vector(0, 0, -52.2), App.Rotation())
sketch16.addGeometry(Part.LineSegment(Vector(-5.3, 15.6, 0), Vector(0, 15.6, 0)), False)
sketch16.addGeometry(Part.LineSegment(Vector(0, 15.6, 0), Vector(0, 18.1, 0)), False)
sketch16.addGeometry(Part.LineSegment(Vector(0, 18.1, 0), Vector(2, 18.1, 0)), False)
sketch16.addGeometry(Part.LineSegment(Vector(2, 18.1, 0), Vector(2, 15.6, 0)), False)
sketch16.addGeometry(Part.LineSegment(Vector(2, 15.6, 0), Vector(5.3, 15.6, 0)), False)
sketch16.addGeometry(Part.LineSegment(Vector(5.3, 15.6, 0), Vector(5.3, -42.4, 0)), False)
sketch16.addGeometry(Part.LineSegment(Vector(5.3, -42.4, 0), Vector(-5.3, -42.4, 0)), False)
sketch16.addGeometry(Part.LineSegment(Vector(-5.3, -42.4, 0), Vector(-5.3, 15.6, 0)), False)
sketch16.addConstraint(Sketcher.Constraint("Coincident", 0, 2, 1, 1))
sketch16.addConstraint(Sketcher.Constraint("Coincident", 1, 2, 2, 1))
sketch16.addConstraint(Sketcher.Constraint("Coincident", 2, 2, 3, 1))
sketch16.addConstraint(Sketcher.Constraint("Coincident", 3, 2, 4, 1))
sketch16.addConstraint(Sketcher.Constraint("Coincident", 4, 2, 5, 1))
sketch16.addConstraint(Sketcher.Constraint("Coincident", 5, 2, 6, 1))
sketch16.addConstraint(Sketcher.Constraint("Coincident", 6, 2, 7, 1))
sketch16.addConstraint(Sketcher.Constraint("Coincident", 7, 2, 0, 1))
sketch16.addConstraint(Sketcher.Constraint("Horizontal", 0))
sketch16.addConstraint(Sketcher.Constraint("Vertical", 1))
sketch16.addConstraint(Sketcher.Constraint("Horizontal", 2))
sketch16.addConstraint(Sketcher.Constraint("Vertical", 3))
sketch16.addConstraint(Sketcher.Constraint("Horizontal", 4))
sketch16.addConstraint(Sketcher.Constraint("Vertical", 5))
sketch16.addConstraint(Sketcher.Constraint("Horizontal", 6))
sketch16.addConstraint(Sketcher.Constraint("Vertical", 7))
sketch16.addConstraint(Sketcher.Constraint("Symmetric", 4, 2, 7, 2, -2))
sketch16.addConstraint(Sketcher.Constraint("PointOnObject", 0, 2, -2))
sketch16.addConstraint(Sketcher.Constraint("DistanceX", 2, 1, 2, 2, 2.0))
sketch16.addConstraint(Sketcher.Constraint("DistanceY", 5, 2, 5, 1, 58.0))
sketch16.addConstraint(Sketcher.Constraint("DistanceX", 0, 1, 0, 2, 5.3))
sketch16.addConstraint(Sketcher.Constraint("DistanceY", 1, 1, 1, 2, 2.5))
sketch16.addConstraint(Sketcher.Constraint("DistanceY", -1, 1, 0, 2, 15.6))
pocket11 = body.newObject("PartDesign::Pocket", "Pocket010")
pocket11.Profile = sketch16
pocket11.Length = 10
pocket11.Reversed = True

# Sketch on YZ plane
sketch17 = body.newObject("Sketcher::SketchObject", "Sketch016")
sketch17.AttachmentSupport = (doc.getObject("YZ_Plane"), [""])
sketch17.MapMode = "FlatFace"
sketch17.AttachmentOffset = App.Placement(Vector(0, 0, -52.2), App.Rotation())
sketch17.addGeometry(Part.LineSegment(Vector(-15.46, 15.6, 0), Vector(-10.16, 15.6, 0)), False)
sketch17.addGeometry(Part.LineSegment(Vector(-10.16, 15.6, 0), Vector(-10.16, 18.1, 0)), False)
sketch17.addGeometry(Part.LineSegment(Vector(-10.16, 18.1, 0), Vector(-8.16, 18.1, 0)), False)
sketch17.addGeometry(Part.LineSegment(Vector(-8.16, 18.1, 0), Vector(-8.16, 15.6, 0)), False)
sketch17.addGeometry(Part.LineSegment(Vector(-8.16, 15.6, 0), Vector(-4.86, 15.6, 0)), False)
sketch17.addGeometry(Part.LineSegment(Vector(-4.86, 15.6, 0), Vector(-4.86, -42.4, 0)), False)
sketch17.addGeometry(Part.LineSegment(Vector(-4.86, -42.4, 0), Vector(-15.46, -42.4, 0)), False)
sketch17.addGeometry(Part.LineSegment(Vector(-15.46, -42.4, 0), Vector(-15.46, 15.6, 0)), False)
sketch17.addConstraint(Sketcher.Constraint("Coincident", 0, 2, 1, 1))
sketch17.addConstraint(Sketcher.Constraint("Coincident", 1, 2, 2, 1))
sketch17.addConstraint(Sketcher.Constraint("Coincident", 2, 2, 3, 1))
sketch17.addConstraint(Sketcher.Constraint("Coincident", 3, 2, 4, 1))
sketch17.addConstraint(Sketcher.Constraint("Coincident", 4, 2, 5, 1))
sketch17.addConstraint(Sketcher.Constraint("Coincident", 5, 2, 6, 1))
sketch17.addConstraint(Sketcher.Constraint("Coincident", 6, 2, 7, 1))
sketch17.addConstraint(Sketcher.Constraint("Coincident", 7, 2, 0, 1))
sketch17.addConstraint(Sketcher.Constraint("Horizontal", 0))
sketch17.addConstraint(Sketcher.Constraint("Vertical", 1))
sketch17.addConstraint(Sketcher.Constraint("Horizontal", 2))
sketch17.addConstraint(Sketcher.Constraint("Vertical", 3))
sketch17.addConstraint(Sketcher.Constraint("Horizontal", 4))
sketch17.addConstraint(Sketcher.Constraint("Vertical", 5))
sketch17.addConstraint(Sketcher.Constraint("Horizontal", 6))
sketch17.addConstraint(Sketcher.Constraint("Vertical", 7))
sketch17.addConstraint(Sketcher.Constraint("Horizontal", 0, 2, 3, 2))
sketch17.addConstraint(Sketcher.Constraint("DistanceX", 2, 1, 2, 2, 2.0))
sketch17.addConstraint(Sketcher.Constraint("DistanceY", 5, 2, 5, 1, 58.0))
sketch17.addConstraint(Sketcher.Constraint("DistanceX", 0, 1, 0, 2, 5.3))
sketch17.addConstraint(Sketcher.Constraint("DistanceX", 4, 1, 4, 2, 3.3))
sketch17.addConstraint(Sketcher.Constraint("DistanceY", 1, 1, 1, 2, 2.5))
sketch17.addConstraint(Sketcher.Constraint("DistanceY", -1, 1, 0, 2, 15.6))
sketch17.addConstraint(Sketcher.Constraint("DistanceX", 0, 2, -1, 1, 10.16))
pocket12 = body.newObject("PartDesign::Pocket", "Pocket011")
pocket12.Profile = sketch17
pocket12.Length = 10
pocket12.Reversed = True

# Sketch on YZ plane
sketch18 = body.newObject("Sketcher::SketchObject", "Sketch017")
sketch18.AttachmentSupport = (doc.getObject("YZ_Plane"), [""])
sketch18.MapMode = "FlatFace"
sketch18.AttachmentOffset = App.Placement(Vector(0, 0, -52.2), App.Rotation())
sketch18.addGeometry(Part.LineSegment(Vector(-25.62, 15.6, 0), Vector(-20.32, 15.6, 0)), False)
sketch18.addGeometry(Part.LineSegment(Vector(-20.32, 15.6, 0), Vector(-20.32, 18.1, 0)), False)
sketch18.addGeometry(Part.LineSegment(Vector(-20.32, 18.1, 0), Vector(-18.32, 18.1, 0)), False)
sketch18.addGeometry(Part.LineSegment(Vector(-18.32, 18.1, 0), Vector(-18.32, 15.6, 0)), False)
sketch18.addGeometry(Part.LineSegment(Vector(-18.32, 15.6, 0), Vector(-15.02, 15.6, 0)), False)
sketch18.addGeometry(Part.LineSegment(Vector(-15.02, 15.6, 0), Vector(-15.02, -42.4, 0)), False)
sketch18.addGeometry(Part.LineSegment(Vector(-15.02, -42.4, 0), Vector(-25.62, -42.4, 0)), False)
sketch18.addGeometry(Part.LineSegment(Vector(-25.62, -42.4, 0), Vector(-25.62, 15.6, 0)), False)
sketch18.addConstraint(Sketcher.Constraint("Coincident", 0, 2, 1, 1))
sketch18.addConstraint(Sketcher.Constraint("Coincident", 1, 2, 2, 1))
sketch18.addConstraint(Sketcher.Constraint("Coincident", 2, 2, 3, 1))
sketch18.addConstraint(Sketcher.Constraint("Coincident", 3, 2, 4, 1))
sketch18.addConstraint(Sketcher.Constraint("Coincident", 4, 2, 5, 1))
sketch18.addConstraint(Sketcher.Constraint("Coincident", 5, 2, 6, 1))
sketch18.addConstraint(Sketcher.Constraint("Coincident", 6, 2, 7, 1))
sketch18.addConstraint(Sketcher.Constraint("Coincident", 7, 2, 0, 1))
sketch18.addConstraint(Sketcher.Constraint("Horizontal", 0))
sketch18.addConstraint(Sketcher.Constraint("Vertical", 1))
sketch18.addConstraint(Sketcher.Constraint("Horizontal", 2))
sketch18.addConstraint(Sketcher.Constraint("Vertical", 3))
sketch18.addConstraint(Sketcher.Constraint("Horizontal", 4))
sketch18.addConstraint(Sketcher.Constraint("Vertical", 5))
sketch18.addConstraint(Sketcher.Constraint("Horizontal", 6))
sketch18.addConstraint(Sketcher.Constraint("Vertical", 7))
sketch18.addConstraint(Sketcher.Constraint("Horizontal", 0, 2, 3, 2))
sketch18.addConstraint(Sketcher.Constraint("DistanceX", 2, 1, 2, 2, 2.0))
sketch18.addConstraint(Sketcher.Constraint("DistanceY", 5, 2, 5, 1, 58.0))
sketch18.addConstraint(Sketcher.Constraint("DistanceX", 0, 1, 0, 2, 5.3))
sketch18.addConstraint(Sketcher.Constraint("DistanceX", 4, 1, 4, 2, 3.3))
sketch18.addConstraint(Sketcher.Constraint("DistanceY", 1, 1, 1, 2, 2.5))
sketch18.addConstraint(Sketcher.Constraint("DistanceY", -1, 1, 0, 2, 15.6))
sketch18.addConstraint(Sketcher.Constraint("DistanceX", 0, 2, -1, 1, 20.32))
pocket13 = body.newObject("PartDesign::Pocket", "Pocket012")
pocket13.Profile = sketch18
pocket13.Length = 10
pocket13.Reversed = True

doc.recompute()
